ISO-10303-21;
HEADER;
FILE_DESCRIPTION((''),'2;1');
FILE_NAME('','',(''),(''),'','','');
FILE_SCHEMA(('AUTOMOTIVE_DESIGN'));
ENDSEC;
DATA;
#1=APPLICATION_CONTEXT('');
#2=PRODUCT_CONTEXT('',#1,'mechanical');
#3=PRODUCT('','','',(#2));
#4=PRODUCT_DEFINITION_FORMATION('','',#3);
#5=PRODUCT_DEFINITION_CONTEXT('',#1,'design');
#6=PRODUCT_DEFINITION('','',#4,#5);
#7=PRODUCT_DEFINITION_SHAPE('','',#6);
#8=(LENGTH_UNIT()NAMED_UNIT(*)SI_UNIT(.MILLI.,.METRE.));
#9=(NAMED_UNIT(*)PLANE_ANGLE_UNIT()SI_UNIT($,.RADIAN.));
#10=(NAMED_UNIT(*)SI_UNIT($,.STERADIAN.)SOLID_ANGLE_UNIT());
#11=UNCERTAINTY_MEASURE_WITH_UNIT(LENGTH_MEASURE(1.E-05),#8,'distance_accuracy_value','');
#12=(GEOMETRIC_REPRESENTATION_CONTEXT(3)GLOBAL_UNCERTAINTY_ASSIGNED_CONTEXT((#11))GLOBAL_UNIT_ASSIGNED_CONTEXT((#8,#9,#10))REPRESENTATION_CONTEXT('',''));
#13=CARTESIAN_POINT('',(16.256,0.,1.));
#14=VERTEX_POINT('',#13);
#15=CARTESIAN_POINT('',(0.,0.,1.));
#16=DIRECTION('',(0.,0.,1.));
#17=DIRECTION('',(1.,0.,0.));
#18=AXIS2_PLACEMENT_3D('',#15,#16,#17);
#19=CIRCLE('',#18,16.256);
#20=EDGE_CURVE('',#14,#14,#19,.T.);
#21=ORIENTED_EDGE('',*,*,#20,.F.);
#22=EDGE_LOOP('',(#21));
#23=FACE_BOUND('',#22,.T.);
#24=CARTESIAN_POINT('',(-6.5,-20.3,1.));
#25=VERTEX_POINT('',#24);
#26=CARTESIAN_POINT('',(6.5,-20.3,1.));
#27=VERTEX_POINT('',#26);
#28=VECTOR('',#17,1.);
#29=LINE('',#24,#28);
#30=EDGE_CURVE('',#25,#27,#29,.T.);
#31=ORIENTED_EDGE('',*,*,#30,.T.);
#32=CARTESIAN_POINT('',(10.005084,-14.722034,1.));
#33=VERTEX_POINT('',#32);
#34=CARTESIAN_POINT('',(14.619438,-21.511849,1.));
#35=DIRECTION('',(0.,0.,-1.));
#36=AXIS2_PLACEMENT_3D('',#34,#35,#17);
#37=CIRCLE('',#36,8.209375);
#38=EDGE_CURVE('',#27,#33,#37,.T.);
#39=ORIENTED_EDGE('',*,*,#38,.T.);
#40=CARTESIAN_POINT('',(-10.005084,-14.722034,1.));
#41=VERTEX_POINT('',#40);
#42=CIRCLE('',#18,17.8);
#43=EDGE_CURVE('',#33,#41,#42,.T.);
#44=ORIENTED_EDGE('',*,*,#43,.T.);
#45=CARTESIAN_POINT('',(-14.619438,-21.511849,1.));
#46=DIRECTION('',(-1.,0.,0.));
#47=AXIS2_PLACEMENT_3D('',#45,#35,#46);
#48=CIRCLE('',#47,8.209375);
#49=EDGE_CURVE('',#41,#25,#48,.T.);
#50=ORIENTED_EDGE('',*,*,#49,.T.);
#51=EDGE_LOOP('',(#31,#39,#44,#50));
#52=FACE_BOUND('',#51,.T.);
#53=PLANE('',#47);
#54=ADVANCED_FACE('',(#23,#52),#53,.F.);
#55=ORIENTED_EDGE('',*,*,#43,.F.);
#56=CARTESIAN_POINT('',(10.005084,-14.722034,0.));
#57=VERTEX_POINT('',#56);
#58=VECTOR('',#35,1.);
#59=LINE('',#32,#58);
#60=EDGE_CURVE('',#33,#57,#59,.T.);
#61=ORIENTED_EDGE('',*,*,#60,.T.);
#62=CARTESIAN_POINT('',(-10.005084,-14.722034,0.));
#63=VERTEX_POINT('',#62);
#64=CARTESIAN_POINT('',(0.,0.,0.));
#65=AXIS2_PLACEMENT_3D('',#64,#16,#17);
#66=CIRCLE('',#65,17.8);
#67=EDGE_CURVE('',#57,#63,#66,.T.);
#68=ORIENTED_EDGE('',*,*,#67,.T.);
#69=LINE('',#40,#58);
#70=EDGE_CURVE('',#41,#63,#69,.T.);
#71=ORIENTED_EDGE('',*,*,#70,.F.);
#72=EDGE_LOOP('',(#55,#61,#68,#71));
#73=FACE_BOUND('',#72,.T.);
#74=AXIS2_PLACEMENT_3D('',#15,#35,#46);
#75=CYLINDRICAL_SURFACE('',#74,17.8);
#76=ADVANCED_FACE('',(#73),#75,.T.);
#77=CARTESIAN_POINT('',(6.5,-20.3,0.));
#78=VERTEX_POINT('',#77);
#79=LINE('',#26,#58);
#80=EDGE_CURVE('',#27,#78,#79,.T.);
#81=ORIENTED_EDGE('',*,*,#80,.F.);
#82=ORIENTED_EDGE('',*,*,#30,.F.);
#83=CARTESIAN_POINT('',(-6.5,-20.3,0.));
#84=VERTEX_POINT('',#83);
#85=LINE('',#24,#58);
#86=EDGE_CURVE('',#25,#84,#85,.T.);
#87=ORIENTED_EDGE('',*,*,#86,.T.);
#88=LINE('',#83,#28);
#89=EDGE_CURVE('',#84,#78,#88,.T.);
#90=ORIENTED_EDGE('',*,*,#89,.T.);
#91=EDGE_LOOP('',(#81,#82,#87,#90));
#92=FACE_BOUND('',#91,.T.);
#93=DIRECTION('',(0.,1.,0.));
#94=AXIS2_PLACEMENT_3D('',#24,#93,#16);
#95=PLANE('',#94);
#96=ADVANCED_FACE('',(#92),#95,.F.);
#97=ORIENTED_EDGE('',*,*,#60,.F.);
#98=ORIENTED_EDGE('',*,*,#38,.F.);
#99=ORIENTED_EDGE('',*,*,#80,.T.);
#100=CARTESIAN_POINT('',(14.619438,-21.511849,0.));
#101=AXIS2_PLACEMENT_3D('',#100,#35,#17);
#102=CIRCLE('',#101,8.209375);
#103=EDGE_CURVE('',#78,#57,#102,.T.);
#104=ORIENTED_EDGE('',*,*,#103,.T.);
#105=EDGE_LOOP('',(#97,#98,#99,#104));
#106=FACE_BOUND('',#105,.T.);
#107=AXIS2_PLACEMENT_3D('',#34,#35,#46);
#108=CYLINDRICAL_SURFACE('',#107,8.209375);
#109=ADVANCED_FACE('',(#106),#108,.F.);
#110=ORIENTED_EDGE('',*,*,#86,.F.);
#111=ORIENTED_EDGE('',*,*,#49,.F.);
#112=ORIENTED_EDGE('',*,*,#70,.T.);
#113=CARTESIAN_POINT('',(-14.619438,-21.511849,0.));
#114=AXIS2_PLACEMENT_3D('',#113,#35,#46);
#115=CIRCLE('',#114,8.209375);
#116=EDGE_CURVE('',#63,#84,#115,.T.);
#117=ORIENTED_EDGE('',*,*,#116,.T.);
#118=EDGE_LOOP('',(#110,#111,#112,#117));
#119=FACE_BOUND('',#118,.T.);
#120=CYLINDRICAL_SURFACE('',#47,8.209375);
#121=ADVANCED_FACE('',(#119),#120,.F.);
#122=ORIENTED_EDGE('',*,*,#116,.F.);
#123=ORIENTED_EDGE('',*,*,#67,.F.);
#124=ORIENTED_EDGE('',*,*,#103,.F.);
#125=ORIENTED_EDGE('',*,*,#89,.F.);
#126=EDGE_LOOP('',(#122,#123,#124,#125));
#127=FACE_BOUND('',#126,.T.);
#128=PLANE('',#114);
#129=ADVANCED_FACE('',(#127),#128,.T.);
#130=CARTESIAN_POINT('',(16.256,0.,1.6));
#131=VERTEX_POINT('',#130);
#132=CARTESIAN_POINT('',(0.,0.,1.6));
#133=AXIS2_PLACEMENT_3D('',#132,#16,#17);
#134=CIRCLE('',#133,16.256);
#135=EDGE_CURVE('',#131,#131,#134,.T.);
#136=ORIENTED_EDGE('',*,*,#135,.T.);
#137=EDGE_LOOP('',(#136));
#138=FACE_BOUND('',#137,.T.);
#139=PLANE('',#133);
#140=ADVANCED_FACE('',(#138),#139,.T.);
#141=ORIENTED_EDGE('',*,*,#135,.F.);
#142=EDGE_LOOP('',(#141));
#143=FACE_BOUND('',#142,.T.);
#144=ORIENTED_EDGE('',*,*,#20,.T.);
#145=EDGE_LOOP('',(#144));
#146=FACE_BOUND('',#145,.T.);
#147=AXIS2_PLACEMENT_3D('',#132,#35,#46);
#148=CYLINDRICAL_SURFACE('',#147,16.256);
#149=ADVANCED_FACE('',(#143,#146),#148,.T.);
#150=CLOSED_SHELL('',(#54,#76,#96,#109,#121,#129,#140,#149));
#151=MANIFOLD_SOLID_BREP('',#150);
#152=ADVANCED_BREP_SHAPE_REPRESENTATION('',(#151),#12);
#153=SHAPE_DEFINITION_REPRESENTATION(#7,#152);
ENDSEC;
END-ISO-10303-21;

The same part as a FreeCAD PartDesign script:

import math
import FreeCAD as App
import Part
import Sketcher

V = App.Vector
Q = App.Units.Quantity

doc = App.newDocument("Part")
body = doc.addObject("PartDesign::Body", "Body")

sketch1 = doc.addObject("Sketcher::SketchObject", "Sketch")
body.addObject(sketch1)
sketch1.AttachmentSupport = (doc.XY_Plane, [""])
sketch1.MapMode = "FlatFace"
sketch1.addGeometry(Part.LineSegment(V(-6, -20, 0), V(6, -20, 0)), False)
sketch1.addGeometry(Part.ArcOfCircle(Part.Circle(V(15, -22, 0), V(0, 0, 1), 8), math.radians(124), math.radians(172)), False)
sketch1.addGeometry(Part.ArcOfCircle(Part.Circle(V(0, 0, 0), V(0, 0, 1), 18), math.radians(-56), math.radians(236)), False)
sketch1.addGeometry(Part.ArcOfCircle(Part.Circle(V(-15, -22, 0), V(0, 0, 1), 8), math.radians(8), math.radians(56)), False)
sketch1.addConstraint(Sketcher.Constraint("Coincident", 0, 2, 1, 2))
sketch1.addConstraint(Sketcher.Constraint("Tangent", 1, 1, 2, 1))
sketch1.addConstraint(Sketcher.Constraint("Tangent", 2, 2, 3, 2))
sketch1.addConstraint(Sketcher.Constraint("Coincident", 3, 1, 0, 1))
sketch1.addConstraint(Sketcher.Constraint("Horizontal", 0))
sketch1.addConstraint(Sketcher.Constraint("Coincident", 2, 3, -1, 1))
sketch1.addConstraint(Sketcher.Constraint("Equal", 1, 3))
sketch1.addConstraint(Sketcher.Constraint("Horizontal", 1, 3, 3, 3))
sketch1.addConstraint(Sketcher.Constraint("Radius", 2, Q("17.8 mm")))
sketch1.addConstraint(Sketcher.Constraint("DistanceX", 0, 1, 0, 2, Q("13 mm")))
sketch1.addConstraint(Sketcher.Constraint("DistanceY", 0, 2, -1, 1, Q("20.3 mm")))
sketch1.addConstraint(Sketcher.Constraint("Radius", 1, Q("8.209375 mm")))
pad1 = doc.addObject("PartDesign::Pad", "Pad")
body.addObject(pad1)
pad1.Profile = sketch1
pad1.Length = 1

sketch2 = doc.addObject("Sketcher::SketchObject", "Sketch001")
body.addObject(sketch2)
sketch2.AttachmentSupport = (doc.XY_Plane, [""])
sketch2.MapMode = "FlatFace"
sketch2.AttachmentOffset = App.Placement(V(0, 0, 1), App.Rotation())
sketch2.addGeometry(Part.Circle(V(0, 0, 0), V(0, 0, 1), 16), False)
sketch2.addConstraint(Sketcher.Constraint("Coincident", 0, 3, -1, 1))
sketch2.addConstraint(Sketcher.Constraint("Diameter", 0, Q("32.512 mm")))
pad2 = doc.addObject("PartDesign::Pad", "Pad001")
body.addObject(pad2)
pad2.Profile = sketch2
pad2.Length = 0.6

doc.recompute()
